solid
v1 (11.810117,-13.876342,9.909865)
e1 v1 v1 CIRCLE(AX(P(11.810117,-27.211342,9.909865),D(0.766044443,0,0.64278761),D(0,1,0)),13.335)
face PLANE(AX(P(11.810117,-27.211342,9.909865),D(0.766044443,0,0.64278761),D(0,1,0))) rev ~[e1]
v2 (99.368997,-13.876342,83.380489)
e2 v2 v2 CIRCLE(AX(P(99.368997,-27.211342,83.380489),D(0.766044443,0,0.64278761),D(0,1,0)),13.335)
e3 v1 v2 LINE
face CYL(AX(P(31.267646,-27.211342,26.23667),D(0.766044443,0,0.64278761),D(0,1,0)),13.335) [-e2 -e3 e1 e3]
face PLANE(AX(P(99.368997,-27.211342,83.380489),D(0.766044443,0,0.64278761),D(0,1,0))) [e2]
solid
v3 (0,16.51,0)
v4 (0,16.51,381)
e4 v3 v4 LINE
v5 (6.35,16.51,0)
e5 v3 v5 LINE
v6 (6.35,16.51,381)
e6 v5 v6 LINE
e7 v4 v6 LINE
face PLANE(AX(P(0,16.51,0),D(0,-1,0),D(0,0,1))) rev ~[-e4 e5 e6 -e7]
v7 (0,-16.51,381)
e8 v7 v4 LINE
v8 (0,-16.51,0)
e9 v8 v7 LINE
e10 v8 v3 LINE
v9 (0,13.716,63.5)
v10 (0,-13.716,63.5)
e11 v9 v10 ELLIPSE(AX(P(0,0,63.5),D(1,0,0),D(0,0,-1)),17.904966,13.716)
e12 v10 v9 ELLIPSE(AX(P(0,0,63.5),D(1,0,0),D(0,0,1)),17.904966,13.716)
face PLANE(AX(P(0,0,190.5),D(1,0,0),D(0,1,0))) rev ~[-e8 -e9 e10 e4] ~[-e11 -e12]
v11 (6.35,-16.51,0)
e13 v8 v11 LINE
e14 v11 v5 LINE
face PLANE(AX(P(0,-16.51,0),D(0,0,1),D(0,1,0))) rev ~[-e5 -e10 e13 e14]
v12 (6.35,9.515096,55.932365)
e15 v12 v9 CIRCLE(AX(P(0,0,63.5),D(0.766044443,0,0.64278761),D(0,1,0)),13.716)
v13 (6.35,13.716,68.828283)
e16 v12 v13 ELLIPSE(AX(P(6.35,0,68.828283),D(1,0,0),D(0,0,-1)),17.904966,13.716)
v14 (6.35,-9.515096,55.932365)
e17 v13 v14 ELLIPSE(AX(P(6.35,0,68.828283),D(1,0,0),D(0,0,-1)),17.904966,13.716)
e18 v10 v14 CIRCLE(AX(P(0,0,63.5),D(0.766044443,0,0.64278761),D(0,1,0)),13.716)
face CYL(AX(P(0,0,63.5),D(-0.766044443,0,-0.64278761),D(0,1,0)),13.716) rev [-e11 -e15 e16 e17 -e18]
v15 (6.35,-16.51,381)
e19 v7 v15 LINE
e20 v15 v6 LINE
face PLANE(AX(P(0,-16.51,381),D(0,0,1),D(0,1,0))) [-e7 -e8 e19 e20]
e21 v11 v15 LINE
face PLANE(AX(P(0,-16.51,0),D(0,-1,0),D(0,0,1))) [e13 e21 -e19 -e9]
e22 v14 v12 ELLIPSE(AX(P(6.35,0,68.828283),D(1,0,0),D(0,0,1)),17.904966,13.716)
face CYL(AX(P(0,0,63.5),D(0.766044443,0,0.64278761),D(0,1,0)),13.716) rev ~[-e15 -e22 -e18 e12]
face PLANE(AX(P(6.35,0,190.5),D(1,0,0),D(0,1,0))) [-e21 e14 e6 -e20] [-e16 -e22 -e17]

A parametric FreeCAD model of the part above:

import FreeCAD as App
import Part
import Sketcher

V = App.Vector
Q = App.Units.Quantity


def add_polygon(sketch, points):
    """Adds a closed chain of lines whose ends are joined by coincident constraints."""
    first, n = sketch.GeometryCount, len(points)
    for a, b in zip(points, points[1:] + points[:1]):
        sketch.addGeometry(Part.LineSegment(App.Vector(*a, 0), App.Vector(*b, 0)), False)
    for i in range(n):
        sketch.addConstraint(Sketcher.Constraint("Coincident", first + i, 2, first + (i + 1) % n, 1))

doc = App.newDocument("Part")
body = doc.addObject("PartDesign::Body", "Body")

# Sketch on YZ plane
sketch1 = body.newObject("Sketcher::SketchObject", "Sketch")
sketch1.AttachmentSupport = (doc.getObject("YZ_Plane"), [""])
sketch1.MapMode = "FlatFace"
add_polygon(sketch1, [(-17, 381), (-17, 0), (17, 0), (17, 381)])  # lines 0-3
sketch1.addConstraint([
    Sketcher.Constraint("Vertical", 0),
    Sketcher.Constraint("Horizontal", 1),
    Sketcher.Constraint("Vertical", 2),
    Sketcher.Constraint("Horizontal", 3),
    Sketcher.Constraint("Symmetric", 0, 2, 1, 2, -1, 1),
    Sketcher.Constraint("DistanceY", 0, 2, 0, 1, Q("15 in")),
    Sketcher.Constraint("DistanceX", 1, 1, 1, 2, Q("1.3 in")),
])
pad1 = body.newObject("PartDesign::Pad", "Pad")
pad1.Profile = sketch1
pad1.Length = Q("0.25 in")

# Sketch on an angled plane
sketch2 = body.newObject("Sketcher::SketchObject", "Sketch001")
sketch2.Placement = App.Placement(V(31.267646, 0, 26.23667), App.Rotation(V(0, 1, 0), V(-0.64278761, 0, 0.766044443), V(0.766044443, 0, 0.64278761), "ZXY"))
sketch2.addGeometry(Part.Circle(V(0, 49, 0), V(0, 0, 1), 14), False)
sketch2.addConstraint([
    Sketcher.Constraint("PointOnObject", 0, 3, -2),
    Sketcher.Constraint("Diameter", 0, Q("1.08 in")),
    Sketcher.Constraint("DistanceY", -1, 1, 0, 3, Q("48.643822 mm")),
])
pocket1 = body.newObject("PartDesign::Pocket", "Pocket")
pocket1.Profile = sketch2
pocket1.Type = "ThroughAll"
pocket1.Midplane = True
body2 = doc.addObject("PartDesign::Body", "Body001")

# Sketch on an angled plane
sketch3 = body2.newObject("Sketcher::SketchObject", "Sketch002")
sketch3.Placement = App.Placement(V(31.267646, 0, 26.23667), App.Rotation(V(0, 1, 0), V(-0.64278761, 0, 0.766044443), V(0.766044443, 0, 0.64278761), "ZXY"))
sketch3.addGeometry(Part.Circle(V(-27, 0, 0), V(0, 0, 1), 13), False)
sketch3.addConstraint([
    Sketcher.Constraint("PointOnObject", 0, 3, -1),
    Sketcher.Constraint("Diameter", 0, Q("1.05 in")),
    Sketcher.Constraint("DistanceX", 0, 3, -1, 1, Q("27.211342 mm")),
])
pad2 = body2.newObject("PartDesign::Pad", "Pad001")
pad2.Profile = sketch3
pad2.Type = "TwoLengths"
pad2.Length = Q("3.5 in")
pad2.Length2 = Q("1 in")

doc.recompute()
